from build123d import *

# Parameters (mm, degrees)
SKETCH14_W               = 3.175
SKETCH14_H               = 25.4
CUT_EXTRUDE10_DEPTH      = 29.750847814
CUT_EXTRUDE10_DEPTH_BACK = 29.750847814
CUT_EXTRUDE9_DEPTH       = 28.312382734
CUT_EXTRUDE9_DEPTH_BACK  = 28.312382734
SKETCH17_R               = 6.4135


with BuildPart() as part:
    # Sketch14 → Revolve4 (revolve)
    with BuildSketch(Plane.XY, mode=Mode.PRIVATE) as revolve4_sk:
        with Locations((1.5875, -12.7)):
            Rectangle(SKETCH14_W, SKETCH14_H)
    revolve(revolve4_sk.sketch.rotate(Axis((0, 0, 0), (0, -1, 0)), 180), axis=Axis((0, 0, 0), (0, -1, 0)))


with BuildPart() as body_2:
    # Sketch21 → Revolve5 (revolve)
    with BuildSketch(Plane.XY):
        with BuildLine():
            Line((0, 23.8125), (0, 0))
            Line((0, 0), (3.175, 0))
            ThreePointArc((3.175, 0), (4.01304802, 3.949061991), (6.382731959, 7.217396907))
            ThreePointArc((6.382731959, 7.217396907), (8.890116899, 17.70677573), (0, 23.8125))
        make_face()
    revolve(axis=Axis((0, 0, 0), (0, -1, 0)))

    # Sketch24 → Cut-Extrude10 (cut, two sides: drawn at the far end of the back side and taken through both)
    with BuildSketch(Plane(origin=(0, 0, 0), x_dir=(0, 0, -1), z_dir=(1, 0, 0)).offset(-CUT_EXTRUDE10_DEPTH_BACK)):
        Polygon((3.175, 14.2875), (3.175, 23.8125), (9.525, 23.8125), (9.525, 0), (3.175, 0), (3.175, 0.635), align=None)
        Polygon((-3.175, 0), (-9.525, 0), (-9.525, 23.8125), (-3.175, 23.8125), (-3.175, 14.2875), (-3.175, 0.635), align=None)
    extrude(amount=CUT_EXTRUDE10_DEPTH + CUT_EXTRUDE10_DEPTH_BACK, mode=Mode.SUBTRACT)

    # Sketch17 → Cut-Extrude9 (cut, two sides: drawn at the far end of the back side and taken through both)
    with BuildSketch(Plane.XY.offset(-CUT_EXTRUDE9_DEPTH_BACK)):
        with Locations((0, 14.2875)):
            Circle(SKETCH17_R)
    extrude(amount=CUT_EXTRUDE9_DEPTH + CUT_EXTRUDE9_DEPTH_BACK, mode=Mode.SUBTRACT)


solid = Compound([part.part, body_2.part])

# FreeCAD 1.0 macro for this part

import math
import FreeCAD as App
import Part
import Sketcher
Q = App.Units.Quantity

doc = App.newDocument("Part")
body = doc.addObject("PartDesign::Body", "Body")

sketch1 = body.newObject("Sketcher::SketchObject", "Sketch")
sketch1.AttachmentSupport = (doc.getObject("XY_Plane"), [""])
sketch1.MapMode = "FlatFace"
sketch1.addGeometry([
    Part.LineSegment(App.Vector(0, 0, 0), App.Vector(0, -25.4, 0)),
    Part.LineSegment(App.Vector(0, -25.4, 0), App.Vector(3.2, -25.4, 0)),
    Part.LineSegment(App.Vector(3.2, -25.4, 0), App.Vector(3.2, 0, 0)),
    Part.LineSegment(App.Vector(3.2, 0, 0), App.Vector(0, 0, 0)),
], False)
sketch1.addConstraint([
    Sketcher.Constraint("Coincident", 0, 2, 1, 1),
    Sketcher.Constraint("Coincident", 1, 2, 2, 1),
    Sketcher.Constraint("Coincident", 2, 2, 3, 1),
    Sketcher.Constraint("Coincident", 3, 2, 0, 1),
    Sketcher.Constraint("Vertical", 0),
    Sketcher.Constraint("Horizontal", 1),
    Sketcher.Constraint("Vertical", 2),
    Sketcher.Constraint("Horizontal", 3),
    Sketcher.Constraint("Coincident", 3, 2, -1, 1),
    Sketcher.Constraint("DistanceY", 0, 2, 0, 1, Q("1 in")),
    Sketcher.Constraint("DistanceX", 1, 1, 1, 2, Q("0.125 in")),
])
revolution = body.newObject("PartDesign::Revolution", "Revolution")
revolution.Profile = sketch1
revolution.ReferenceAxis = (sketch1, ["V_Axis"])
revolution.Angle = 360
body2 = doc.addObject("PartDesign::Body", "Body001")

sketch2 = body2.newObject("Sketcher::SketchObject", "Sketch001")
sketch2.AttachmentSupport = (doc.getObject("XY_Plane001"), [""])
sketch2.MapMode = "FlatFace"
sketch2.addGeometry([
    Part.LineSegment(App.Vector(0, 23.8, 0), App.Vector(0, 0, 0)),
    Part.LineSegment(App.Vector(0, 0, 0), App.Vector(3.2, 0, 0)),
    Part.ArcOfCircle(Part.Circle(App.Vector(12.9, 0, 0), App.Vector(0, 0, 1), 9.7), math.radians(132), math.radians(180)),
    Part.ArcOfCircle(Part.Circle(App.Vector(0, 14.3, 0), App.Vector(0, 0, 1), 9.5), math.radians(-48), math.radians(90)),
], False)
sketch2.addConstraint([
    Sketcher.Constraint("Coincident", 0, 2, 1, 1),
    Sketcher.Constraint("Coincident", 1, 2, 2, 2),
    Sketcher.Constraint("Tangent", 2, 1, 3, 1),
    Sketcher.Constraint("Coincident", 3, 2, 0, 1),
    Sketcher.Constraint("Vertical", 0),
    Sketcher.Constraint("Horizontal", 1),
    Sketcher.Constraint("Coincident", 0, 2, -1, 1),
    Sketcher.Constraint("PointOnObject", 2, 3, -1),
    Sketcher.Constraint("PointOnObject", 3, 3, -2),
    Sketcher.Constraint("Radius", 3, Q("0.375 in")),
    Sketcher.Constraint("DistanceX", 1, 1, 1, 2, Q("0.125 in")),
    Sketcher.Constraint("DistanceY", 0, 2, 0, 1, Q("0.9375 in")),
])
revolution2 = body2.newObject("PartDesign::Revolution", "Revolution001")
revolution2.Profile = sketch2
revolution2.ReferenceAxis = (sketch2, ["V_Axis"])
revolution2.Angle = 360

sketch3 = body2.newObject("Sketcher::SketchObject", "Sketch002")
sketch3.AttachmentSupport = (doc.getObject("YZ_Plane001"), [""])
sketch3.MapMode = "FlatFace"
sketch3.addGeometry([
    Part.LineSegment(App.Vector(24, -3, 0), App.Vector(0, -3, 0)),
    Part.LineSegment(App.Vector(0, -3, 0), App.Vector(0, -10, 0)),
    Part.LineSegment(App.Vector(0, -10, 0), App.Vector(24, -10, 0)),
    Part.LineSegment(App.Vector(24, -10, 0), App.Vector(24, -3, 0)),
    Part.LineSegment(App.Vector(0, 10, 0), App.Vector(0, 3, 0)),
    Part.LineSegment(App.Vector(0, 3, 0), App.Vector(24, 3, 0)),
    Part.LineSegment(App.Vector(24, 3, 0), App.Vector(24, 10, 0)),
    Part.LineSegment(App.Vector(24, 10, 0), App.Vector(0, 10, 0)),
], False)
sketch3.addConstraint([
    Sketcher.Constraint("Coincident", 0, 2, 1, 1),
    Sketcher.Constraint("Coincident", 1, 2, 2, 1),
    Sketcher.Constraint("Coincident", 2, 2, 3, 1),
    Sketcher.Constraint("Coincident", 3, 2, 0, 1),
    Sketcher.Constraint("Coincident", 4, 2, 5, 1),
    Sketcher.Constraint("Coincident", 5, 2, 6, 1),
    Sketcher.Constraint("Coincident", 6, 2, 7, 1),
    Sketcher.Constraint("Coincident", 7, 2, 4, 1),
    Sketcher.Constraint("Horizontal", 0),
    Sketcher.Constraint("Vertical", 1),
    Sketcher.Constraint("Horizontal", 2),
    Sketcher.Constraint("Vertical", 3),
    Sketcher.Constraint("Vertical", 4),
    Sketcher.Constraint("Horizontal", 5),
    Sketcher.Constraint("Vertical", 6),
    Sketcher.Constraint("Horizontal", 7),
    Sketcher.Constraint("Symmetric", 0, 2, 4, 2, -1, 1),
    Sketcher.Constraint("Symmetric", 2, 2, 6, 2, -1),
    Sketcher.Constraint("PointOnObject", 0, 2, -2),
    Sketcher.Constraint("DistanceY", 1, 2, 1, 1, Q("0.25 in")),
    Sketcher.Constraint("DistanceY", 1, 2, 4, 2, Q("0.5 in")),
    Sketcher.Constraint("DistanceX", 0, 2, 0, 1, Q("0.9375 in")),
])
pocket1 = body2.newObject("PartDesign::Pocket", "Pocket")
pocket1.Profile = sketch3
pocket1.Type = "ThroughAll"
pocket1.Midplane = True

sketch4 = body2.newObject("Sketcher::SketchObject", "Sketch003")
sketch4.AttachmentSupport = (doc.getObject("XY_Plane001"), [""])
sketch4.MapMode = "FlatFace"
sketch4.addGeometry(Part.Circle(App.Vector(0, 14, 0), App.Vector(0, 0, 1), 6), False)
sketch4.addConstraint([
    Sketcher.Constraint("PointOnObject", 0, 3, -2),
    Sketcher.Constraint("Diameter", 0, Q("0.505 in")),
    Sketcher.Constraint("DistanceY", -1, 1, 0, 3, Q("0.5625 in")),
])
pocket2 = body2.newObject("PartDesign::Pocket", "Pocket001")
pocket2.Profile = sketch4
pocket2.Type = "ThroughAll"
pocket2.Midplane = True

doc.recompute()
